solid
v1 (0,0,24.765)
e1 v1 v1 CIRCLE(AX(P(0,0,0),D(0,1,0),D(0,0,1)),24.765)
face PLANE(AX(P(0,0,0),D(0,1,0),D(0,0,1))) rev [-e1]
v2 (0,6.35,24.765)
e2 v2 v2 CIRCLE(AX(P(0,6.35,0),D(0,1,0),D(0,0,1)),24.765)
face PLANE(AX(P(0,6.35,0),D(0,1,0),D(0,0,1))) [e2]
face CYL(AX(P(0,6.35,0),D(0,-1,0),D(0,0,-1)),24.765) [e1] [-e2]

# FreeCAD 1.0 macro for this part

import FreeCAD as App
import Part
import Sketcher
from FreeCAD import Vector
Q = App.Units.Quantity

doc = App.newDocument("Part")
body = doc.addObject("PartDesign::Body", "Body")

# Sketch on XZ plane
sketch1 = doc.addObject("Sketcher::SketchObject", "Sketch")
body.addObject(sketch1)
sketch1.AttachmentSupport = (doc.XZ_Plane, [""])
sketch1.MapMode = "FlatFace"
sketch1.addGeometry(Part.Circle(Vector(0, 0, 0), Vector(0, 0, 1), 25), False)
sketch1.addConstraint([
    Sketcher.Constraint("Coincident", 0, 3, -1, 1),
    Sketcher.Constraint("Diameter", 0, Q("1.95 in")),
])
pad1 = doc.addObject("PartDesign::Pad", "Pad")
body.addObject(pad1)
pad1.Profile = sketch1
pad1.Length = Q("0.25 in")
pad1.Reversed = True

doc.recompute()
